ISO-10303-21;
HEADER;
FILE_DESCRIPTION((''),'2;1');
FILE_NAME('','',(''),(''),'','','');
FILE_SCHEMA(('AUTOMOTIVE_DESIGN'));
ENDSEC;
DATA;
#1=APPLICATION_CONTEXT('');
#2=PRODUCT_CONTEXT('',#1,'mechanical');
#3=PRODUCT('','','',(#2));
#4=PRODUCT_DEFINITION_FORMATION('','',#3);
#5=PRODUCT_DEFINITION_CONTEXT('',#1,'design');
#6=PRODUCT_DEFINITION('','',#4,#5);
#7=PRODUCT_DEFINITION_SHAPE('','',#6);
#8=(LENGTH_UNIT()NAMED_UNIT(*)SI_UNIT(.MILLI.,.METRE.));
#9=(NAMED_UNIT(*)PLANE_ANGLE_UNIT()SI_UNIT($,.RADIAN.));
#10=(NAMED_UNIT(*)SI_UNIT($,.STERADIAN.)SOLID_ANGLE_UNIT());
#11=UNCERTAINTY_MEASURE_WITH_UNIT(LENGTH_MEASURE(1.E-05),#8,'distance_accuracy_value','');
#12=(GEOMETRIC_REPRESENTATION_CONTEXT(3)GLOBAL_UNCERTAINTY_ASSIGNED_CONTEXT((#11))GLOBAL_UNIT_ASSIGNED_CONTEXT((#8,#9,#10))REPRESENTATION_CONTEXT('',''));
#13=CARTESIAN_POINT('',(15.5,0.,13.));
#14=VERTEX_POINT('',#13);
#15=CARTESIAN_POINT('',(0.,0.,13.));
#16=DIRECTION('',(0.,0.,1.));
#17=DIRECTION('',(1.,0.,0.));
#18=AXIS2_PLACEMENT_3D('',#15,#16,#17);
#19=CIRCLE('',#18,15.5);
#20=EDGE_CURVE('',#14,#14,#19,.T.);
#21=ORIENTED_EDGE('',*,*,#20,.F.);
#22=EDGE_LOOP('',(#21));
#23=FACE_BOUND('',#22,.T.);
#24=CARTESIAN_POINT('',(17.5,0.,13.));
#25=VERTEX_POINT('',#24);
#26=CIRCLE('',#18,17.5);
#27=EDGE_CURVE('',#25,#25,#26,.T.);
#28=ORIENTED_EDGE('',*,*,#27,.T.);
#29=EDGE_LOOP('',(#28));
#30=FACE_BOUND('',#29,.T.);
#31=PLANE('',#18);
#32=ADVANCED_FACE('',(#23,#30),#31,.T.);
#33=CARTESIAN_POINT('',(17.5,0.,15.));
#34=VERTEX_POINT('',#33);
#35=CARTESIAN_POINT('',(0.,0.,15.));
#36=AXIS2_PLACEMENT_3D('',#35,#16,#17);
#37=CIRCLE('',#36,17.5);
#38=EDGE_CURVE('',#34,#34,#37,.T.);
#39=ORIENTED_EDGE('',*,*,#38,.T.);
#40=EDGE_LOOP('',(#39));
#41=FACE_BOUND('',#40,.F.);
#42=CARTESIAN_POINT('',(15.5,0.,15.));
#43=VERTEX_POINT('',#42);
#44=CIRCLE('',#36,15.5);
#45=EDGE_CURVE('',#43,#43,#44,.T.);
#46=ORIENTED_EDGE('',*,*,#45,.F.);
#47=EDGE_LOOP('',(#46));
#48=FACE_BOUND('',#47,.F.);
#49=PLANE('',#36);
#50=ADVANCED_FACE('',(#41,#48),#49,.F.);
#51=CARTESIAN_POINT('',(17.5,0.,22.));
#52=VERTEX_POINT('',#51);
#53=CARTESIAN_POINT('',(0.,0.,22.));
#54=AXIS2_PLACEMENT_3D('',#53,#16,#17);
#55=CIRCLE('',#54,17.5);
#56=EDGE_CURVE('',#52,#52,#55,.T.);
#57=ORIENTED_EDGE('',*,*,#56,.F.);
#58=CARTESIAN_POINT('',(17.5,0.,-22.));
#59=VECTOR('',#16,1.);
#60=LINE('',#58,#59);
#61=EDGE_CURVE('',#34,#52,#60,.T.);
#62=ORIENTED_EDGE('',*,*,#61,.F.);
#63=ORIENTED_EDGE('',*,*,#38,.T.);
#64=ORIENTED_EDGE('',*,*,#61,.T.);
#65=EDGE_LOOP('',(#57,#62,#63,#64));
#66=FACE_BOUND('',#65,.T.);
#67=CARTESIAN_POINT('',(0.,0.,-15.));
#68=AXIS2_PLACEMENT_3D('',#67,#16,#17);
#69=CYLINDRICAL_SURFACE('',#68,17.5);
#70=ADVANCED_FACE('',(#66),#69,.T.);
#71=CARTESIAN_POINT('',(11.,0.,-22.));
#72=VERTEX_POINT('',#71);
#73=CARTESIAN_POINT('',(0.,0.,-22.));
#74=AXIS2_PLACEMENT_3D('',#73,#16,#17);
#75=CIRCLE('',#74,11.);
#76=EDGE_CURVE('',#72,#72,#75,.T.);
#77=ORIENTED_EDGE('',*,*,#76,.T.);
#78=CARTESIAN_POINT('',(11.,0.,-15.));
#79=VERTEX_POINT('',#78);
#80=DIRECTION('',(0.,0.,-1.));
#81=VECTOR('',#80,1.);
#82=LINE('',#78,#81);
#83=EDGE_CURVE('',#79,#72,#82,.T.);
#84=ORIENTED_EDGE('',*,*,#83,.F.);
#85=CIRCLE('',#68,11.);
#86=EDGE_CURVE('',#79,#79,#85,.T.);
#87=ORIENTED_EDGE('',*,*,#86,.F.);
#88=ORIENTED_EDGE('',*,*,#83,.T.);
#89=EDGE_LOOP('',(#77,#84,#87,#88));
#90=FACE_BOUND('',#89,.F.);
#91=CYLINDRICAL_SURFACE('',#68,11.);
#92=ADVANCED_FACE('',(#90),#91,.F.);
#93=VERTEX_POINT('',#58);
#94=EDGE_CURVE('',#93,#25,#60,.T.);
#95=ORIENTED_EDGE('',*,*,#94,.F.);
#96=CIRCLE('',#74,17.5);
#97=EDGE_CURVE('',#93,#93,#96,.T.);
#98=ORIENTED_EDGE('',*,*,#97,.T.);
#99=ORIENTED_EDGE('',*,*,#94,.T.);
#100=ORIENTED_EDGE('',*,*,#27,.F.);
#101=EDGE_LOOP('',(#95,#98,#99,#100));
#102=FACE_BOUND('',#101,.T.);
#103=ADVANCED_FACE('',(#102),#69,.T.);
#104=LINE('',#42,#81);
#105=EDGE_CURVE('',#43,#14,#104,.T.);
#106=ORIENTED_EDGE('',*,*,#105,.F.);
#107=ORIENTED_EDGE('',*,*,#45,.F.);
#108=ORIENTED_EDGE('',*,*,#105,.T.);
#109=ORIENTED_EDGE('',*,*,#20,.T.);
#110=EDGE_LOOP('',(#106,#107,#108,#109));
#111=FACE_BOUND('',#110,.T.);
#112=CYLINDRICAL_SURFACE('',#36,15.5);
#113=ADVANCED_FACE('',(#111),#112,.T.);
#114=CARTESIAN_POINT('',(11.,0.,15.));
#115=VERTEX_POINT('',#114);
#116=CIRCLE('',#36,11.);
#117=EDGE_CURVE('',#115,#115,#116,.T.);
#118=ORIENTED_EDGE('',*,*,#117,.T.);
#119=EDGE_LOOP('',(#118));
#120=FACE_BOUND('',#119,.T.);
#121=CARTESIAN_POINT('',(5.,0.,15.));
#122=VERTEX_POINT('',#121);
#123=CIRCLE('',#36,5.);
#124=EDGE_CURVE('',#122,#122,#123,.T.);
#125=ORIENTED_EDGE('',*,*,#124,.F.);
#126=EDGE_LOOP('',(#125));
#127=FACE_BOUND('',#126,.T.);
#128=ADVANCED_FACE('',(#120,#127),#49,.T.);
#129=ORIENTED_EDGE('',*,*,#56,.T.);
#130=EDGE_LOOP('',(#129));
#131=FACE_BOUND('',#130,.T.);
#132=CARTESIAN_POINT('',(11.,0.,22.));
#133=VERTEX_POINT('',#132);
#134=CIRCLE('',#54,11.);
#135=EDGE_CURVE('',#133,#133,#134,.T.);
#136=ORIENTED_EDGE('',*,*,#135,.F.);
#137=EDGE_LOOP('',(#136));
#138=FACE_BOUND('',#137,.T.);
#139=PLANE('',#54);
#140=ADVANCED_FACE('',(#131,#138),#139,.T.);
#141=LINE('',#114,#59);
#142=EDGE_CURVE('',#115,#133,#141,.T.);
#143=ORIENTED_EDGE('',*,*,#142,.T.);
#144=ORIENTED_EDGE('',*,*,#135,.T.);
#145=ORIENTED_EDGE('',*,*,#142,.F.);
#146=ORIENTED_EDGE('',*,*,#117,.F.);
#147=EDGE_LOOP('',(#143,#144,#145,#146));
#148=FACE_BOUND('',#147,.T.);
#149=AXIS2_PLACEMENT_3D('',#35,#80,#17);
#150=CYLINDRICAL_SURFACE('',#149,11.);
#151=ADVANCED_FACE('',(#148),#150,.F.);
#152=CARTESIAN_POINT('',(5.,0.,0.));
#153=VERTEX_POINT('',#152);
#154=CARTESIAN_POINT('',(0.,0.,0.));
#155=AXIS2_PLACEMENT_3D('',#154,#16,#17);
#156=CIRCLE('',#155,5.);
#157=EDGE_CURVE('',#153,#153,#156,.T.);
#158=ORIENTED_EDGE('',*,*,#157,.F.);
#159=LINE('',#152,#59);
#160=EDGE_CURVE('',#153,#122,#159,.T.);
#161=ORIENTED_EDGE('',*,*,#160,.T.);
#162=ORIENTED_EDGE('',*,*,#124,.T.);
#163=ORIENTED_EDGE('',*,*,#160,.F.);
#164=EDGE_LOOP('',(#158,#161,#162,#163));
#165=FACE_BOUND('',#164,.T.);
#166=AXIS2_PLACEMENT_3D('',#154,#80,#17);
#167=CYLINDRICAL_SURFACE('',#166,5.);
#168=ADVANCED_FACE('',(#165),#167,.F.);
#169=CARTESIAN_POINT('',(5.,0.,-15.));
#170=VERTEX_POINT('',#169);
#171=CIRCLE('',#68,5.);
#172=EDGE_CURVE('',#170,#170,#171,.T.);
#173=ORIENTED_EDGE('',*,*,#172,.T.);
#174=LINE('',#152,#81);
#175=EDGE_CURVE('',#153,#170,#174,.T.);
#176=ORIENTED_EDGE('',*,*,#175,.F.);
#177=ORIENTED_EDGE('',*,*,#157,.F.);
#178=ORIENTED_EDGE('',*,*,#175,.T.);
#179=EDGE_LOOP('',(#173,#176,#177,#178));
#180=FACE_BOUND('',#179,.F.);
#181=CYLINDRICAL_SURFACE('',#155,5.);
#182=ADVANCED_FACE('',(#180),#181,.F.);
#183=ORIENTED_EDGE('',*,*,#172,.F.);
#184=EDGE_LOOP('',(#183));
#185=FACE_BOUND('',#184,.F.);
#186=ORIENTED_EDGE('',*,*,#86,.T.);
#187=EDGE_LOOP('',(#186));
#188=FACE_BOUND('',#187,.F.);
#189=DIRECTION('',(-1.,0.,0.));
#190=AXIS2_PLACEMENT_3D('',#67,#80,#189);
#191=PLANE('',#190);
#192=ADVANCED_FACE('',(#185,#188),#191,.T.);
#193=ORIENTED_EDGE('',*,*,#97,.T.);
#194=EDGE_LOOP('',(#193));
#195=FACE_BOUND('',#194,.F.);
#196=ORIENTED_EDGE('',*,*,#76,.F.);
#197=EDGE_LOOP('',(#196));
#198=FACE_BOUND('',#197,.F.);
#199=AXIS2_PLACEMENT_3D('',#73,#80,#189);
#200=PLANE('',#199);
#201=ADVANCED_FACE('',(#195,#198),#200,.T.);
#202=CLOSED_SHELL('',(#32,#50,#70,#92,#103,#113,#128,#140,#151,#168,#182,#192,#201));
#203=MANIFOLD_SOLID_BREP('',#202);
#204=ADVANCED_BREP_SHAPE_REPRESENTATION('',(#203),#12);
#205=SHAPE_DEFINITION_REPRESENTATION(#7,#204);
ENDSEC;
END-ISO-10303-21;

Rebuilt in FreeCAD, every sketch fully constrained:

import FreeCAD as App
import Part
import Sketcher
Q = App.Units.Quantity

doc = App.newDocument("Part")
body = doc.addObject("PartDesign::Body", "Body")

# Sketch on XY plane
sketch1 = body.newObject("Sketcher::SketchObject", "Sketch")
sketch1.AttachmentSupport = (doc.getObject("XY_Plane"), [""])
sketch1.MapMode = "FlatFace"
sketch1.addGeometry(Part.Circle(App.Vector(0, 0, 0), App.Vector(0, 0, 1), 18), False)
sketch1.addGeometry(Part.Circle(App.Vector(0, 0, 0), App.Vector(0, 0, 1), 5), False)
sketch1.addConstraint(Sketcher.Constraint("Coincident", 0, 3, -1, 1))
sketch1.addConstraint(Sketcher.Constraint("Coincident", 1, 3, -1, 1))
sketch1.addConstraint(Sketcher.Constraint("Diameter", 0, Q("35 mm")))
sketch1.addConstraint(Sketcher.Constraint("Diameter", 1, Q("10 mm")))
pad1 = body.newObject("PartDesign::Pad", "Pad")
pad1.Profile = sketch1
pad1.Length = 15

# Sketch on XY plane
sketch2 = body.newObject("Sketcher::SketchObject", "Sketch001")
sketch2.AttachmentSupport = (doc.getObject("XY_Plane"), [""])
sketch2.MapMode = "FlatFace"
sketch2.AttachmentOffset = App.Placement(App.Vector(0, 0, 15), App.Rotation())
sketch2.addGeometry(Part.Circle(App.Vector(0, 0, 0), App.Vector(0, 0, 1), 18), False)
sketch2.addGeometry(Part.Circle(App.Vector(0, 0, 0), App.Vector(0, 0, 1), 11), False)
sketch2.addConstraint(Sketcher.Constraint("Coincident", 0, 3, -1, 1))
sketch2.addConstraint(Sketcher.Constraint("Coincident", 1, 3, -1, 1))
sketch2.addConstraint(Sketcher.Constraint("Diameter", 0, Q("35 mm")))
sketch2.addConstraint(Sketcher.Constraint("Diameter", 1, Q("22 mm")))
pad2 = body.newObject("PartDesign::Pad", "Pad001")
pad2.Profile = sketch2
pad2.Length = 7
body2 = doc.addObject("PartDesign::Body", "Body001")
doc.recompute()

body2.BaseFeature = body
doc.recompute()

mirroring = doc.addObject("Part::Mirroring", "Mirroring")
mirroring.Source = body
mirroring.Base = App.Vector(0, 0, 0)
mirroring.Normal = App.Vector(0, 0, 1)
body3 = doc.addObject("PartDesign::Body", "Body002")
body3.BaseFeature = mirroring
boolean = body2.newObject("PartDesign::Boolean", "Boolean")
boolean.Type = "Fuse"
boolean.addObjects([body3])
doc.recompute()

# Sketch on XY plane
sketch3 = body2.newObject("Sketcher::SketchObject", "Sketch002")
sketch3.AttachmentSupport = (doc.getObject("XY_Plane001"), [""])
sketch3.MapMode = "FlatFace"
sketch3.AttachmentOffset = App.Placement(App.Vector(0, 0, 15), App.Rotation())
sketch3.addGeometry(Part.Circle(App.Vector(0, 0, 0), App.Vector(0, 0, 1), 18), False)
sketch3.addGeometry(Part.Circle(App.Vector(0, 0, 0), App.Vector(0, 0, 1), 16), False)
sketch3.addConstraint(Sketcher.Constraint("Coincident", 0, 3, -1, 1))
sketch3.addConstraint(Sketcher.Constraint("Coincident", 1, 3, -1, 1))
sketch3.addConstraint(Sketcher.Constraint("Diameter", 0, Q("35 mm")))
sketch3.addConstraint(Sketcher.Constraint("Diameter", 1, Q("31 mm")))
pocket1 = body2.newObject("PartDesign::Pocket", "Pocket")
pocket1.Profile = sketch3
pocket1.Length = 2
mirroring.Visibility = False

doc.recompute()
